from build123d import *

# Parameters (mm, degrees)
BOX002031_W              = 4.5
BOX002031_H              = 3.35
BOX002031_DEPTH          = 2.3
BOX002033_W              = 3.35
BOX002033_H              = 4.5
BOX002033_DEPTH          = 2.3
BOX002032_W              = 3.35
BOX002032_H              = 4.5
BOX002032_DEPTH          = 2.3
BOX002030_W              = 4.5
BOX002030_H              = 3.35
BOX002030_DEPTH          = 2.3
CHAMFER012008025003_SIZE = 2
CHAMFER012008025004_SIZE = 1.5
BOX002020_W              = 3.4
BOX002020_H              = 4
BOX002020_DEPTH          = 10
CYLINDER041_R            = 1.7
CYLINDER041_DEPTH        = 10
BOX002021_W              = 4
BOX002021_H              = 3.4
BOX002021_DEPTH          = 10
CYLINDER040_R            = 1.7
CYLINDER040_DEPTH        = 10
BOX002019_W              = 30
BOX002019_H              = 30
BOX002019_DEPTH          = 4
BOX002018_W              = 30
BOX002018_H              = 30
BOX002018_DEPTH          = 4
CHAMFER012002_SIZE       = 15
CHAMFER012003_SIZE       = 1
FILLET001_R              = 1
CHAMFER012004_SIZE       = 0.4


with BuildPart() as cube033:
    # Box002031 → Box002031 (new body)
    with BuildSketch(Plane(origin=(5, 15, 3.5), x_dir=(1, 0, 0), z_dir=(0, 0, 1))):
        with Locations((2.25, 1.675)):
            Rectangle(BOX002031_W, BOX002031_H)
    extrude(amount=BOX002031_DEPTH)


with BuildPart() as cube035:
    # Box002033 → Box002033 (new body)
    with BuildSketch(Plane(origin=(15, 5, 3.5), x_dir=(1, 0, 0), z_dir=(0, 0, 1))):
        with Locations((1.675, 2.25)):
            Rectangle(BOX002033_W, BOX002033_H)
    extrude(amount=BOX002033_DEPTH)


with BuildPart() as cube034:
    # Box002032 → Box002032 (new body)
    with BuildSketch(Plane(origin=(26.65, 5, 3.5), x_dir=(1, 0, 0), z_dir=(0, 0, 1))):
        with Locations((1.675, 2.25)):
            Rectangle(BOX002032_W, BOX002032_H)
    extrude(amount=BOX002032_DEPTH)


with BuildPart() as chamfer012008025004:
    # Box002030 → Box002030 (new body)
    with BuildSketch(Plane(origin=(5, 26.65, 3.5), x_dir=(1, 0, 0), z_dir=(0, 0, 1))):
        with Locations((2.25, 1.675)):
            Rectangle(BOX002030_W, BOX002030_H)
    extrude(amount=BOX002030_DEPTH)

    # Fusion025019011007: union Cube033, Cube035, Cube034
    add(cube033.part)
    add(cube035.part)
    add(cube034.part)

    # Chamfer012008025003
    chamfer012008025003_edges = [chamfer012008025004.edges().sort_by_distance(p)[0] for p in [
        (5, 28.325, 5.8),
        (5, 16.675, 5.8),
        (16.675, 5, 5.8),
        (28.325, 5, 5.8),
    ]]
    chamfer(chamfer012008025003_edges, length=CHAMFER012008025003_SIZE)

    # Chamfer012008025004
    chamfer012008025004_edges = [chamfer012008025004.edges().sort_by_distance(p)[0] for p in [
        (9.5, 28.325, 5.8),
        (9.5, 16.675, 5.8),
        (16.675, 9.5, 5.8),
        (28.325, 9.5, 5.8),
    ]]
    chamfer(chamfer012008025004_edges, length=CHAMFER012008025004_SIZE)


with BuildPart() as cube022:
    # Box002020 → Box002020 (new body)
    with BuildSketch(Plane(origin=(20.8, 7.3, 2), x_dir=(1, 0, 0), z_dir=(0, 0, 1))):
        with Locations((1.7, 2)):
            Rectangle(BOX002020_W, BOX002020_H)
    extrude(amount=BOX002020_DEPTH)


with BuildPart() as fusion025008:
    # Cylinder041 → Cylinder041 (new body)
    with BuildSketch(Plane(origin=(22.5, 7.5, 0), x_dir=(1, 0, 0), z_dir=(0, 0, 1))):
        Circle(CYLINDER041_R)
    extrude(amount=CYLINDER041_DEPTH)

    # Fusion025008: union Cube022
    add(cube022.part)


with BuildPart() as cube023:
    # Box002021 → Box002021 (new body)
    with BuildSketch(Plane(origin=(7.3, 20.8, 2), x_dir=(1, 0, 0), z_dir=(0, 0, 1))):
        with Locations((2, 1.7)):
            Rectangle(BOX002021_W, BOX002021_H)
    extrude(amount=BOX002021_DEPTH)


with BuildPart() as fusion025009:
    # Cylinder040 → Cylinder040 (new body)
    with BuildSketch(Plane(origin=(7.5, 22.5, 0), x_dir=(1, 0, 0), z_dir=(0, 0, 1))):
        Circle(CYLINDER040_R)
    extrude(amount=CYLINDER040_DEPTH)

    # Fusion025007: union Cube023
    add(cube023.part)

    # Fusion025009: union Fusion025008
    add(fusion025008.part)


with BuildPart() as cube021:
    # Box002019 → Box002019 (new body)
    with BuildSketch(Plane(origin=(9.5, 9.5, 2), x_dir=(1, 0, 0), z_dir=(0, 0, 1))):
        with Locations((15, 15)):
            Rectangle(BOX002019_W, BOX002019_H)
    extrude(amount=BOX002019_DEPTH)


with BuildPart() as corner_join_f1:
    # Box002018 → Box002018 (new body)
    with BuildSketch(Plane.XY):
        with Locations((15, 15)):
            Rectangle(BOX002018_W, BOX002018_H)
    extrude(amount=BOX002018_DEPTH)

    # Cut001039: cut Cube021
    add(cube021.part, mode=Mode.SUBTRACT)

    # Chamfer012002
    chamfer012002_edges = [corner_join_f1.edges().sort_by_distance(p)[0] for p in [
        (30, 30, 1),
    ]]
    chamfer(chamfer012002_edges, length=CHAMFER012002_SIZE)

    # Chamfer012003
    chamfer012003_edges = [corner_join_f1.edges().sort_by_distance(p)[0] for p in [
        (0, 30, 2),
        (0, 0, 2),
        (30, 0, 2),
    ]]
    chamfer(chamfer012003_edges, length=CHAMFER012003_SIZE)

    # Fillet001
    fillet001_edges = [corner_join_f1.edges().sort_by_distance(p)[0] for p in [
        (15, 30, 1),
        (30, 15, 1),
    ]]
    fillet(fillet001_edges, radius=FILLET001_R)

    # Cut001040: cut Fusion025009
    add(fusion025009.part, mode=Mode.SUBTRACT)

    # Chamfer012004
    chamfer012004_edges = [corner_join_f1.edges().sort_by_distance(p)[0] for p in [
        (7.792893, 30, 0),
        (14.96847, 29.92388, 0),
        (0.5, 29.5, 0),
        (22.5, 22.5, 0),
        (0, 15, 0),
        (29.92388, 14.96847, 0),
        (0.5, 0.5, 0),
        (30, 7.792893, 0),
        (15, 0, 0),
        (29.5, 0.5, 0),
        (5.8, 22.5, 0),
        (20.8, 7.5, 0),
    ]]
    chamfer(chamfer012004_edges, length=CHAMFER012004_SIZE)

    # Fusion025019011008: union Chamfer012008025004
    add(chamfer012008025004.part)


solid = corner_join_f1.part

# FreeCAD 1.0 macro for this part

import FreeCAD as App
import Part
import Sketcher

V = App.Vector


def edges_at(feature, points):
    """Names of the edges that pass closest to the given points."""
    edges = feature.Shape.Edges
    near = lambda p: min(range(len(edges)), key=lambda i: edges[i].distToShape(Part.Vertex(*p))[0])
    return sorted({f"Edge{near(p) + 1}" for p in points})

doc = App.newDocument("Part")
body = doc.addObject("PartDesign::Body", "Body")

# Sketch on XY plane
sketch1 = doc.addObject("Sketcher::SketchObject", "Sketch")
body.addObject(sketch1)
sketch1.AttachmentSupport = (doc.XY_Plane, [""])
sketch1.MapMode = "FlatFace"
sketch1.AttachmentOffset = App.Placement(V(0, 0, 3.5), App.Rotation())
sketch1.addGeometry([
    Part.LineSegment(V(5, 18.35, 0), V(5, 15, 0)),
    Part.LineSegment(V(5, 15, 0), V(9.5, 15, 0)),
    Part.LineSegment(V(9.5, 15, 0), V(9.5, 18.35, 0)),
    Part.LineSegment(V(9.5, 18.35, 0), V(5, 18.35, 0)),
], False)
sketch1.addConstraint([
    Sketcher.Constraint("Coincident", 0, 2, 1, 1),
    Sketcher.Constraint("Coincident", 1, 2, 2, 1),
    Sketcher.Constraint("Coincident", 2, 2, 3, 1),
    Sketcher.Constraint("Coincident", 3, 2, 0, 1),
    Sketcher.Constraint("Vertical", 0),
    Sketcher.Constraint("Horizontal", 1),
    Sketcher.Constraint("Vertical", 2),
    Sketcher.Constraint("Horizontal", 3),
    Sketcher.Constraint("DistanceX", 1, 1, 1, 2, 4.5),
    Sketcher.Constraint("DistanceX", -1, 1, 0, 2, 5.0),
    Sketcher.Constraint("DistanceY", -1, 1, 0, 2, 15.0),
    Sketcher.Constraint("DistanceY", 0, 2, 0, 1, 3.35),
])
pad1 = doc.addObject("PartDesign::Pad", "Pad")
body.addObject(pad1)
pad1.Profile = sketch1
pad1.Length = 2.3
body2 = doc.addObject("PartDesign::Body", "Body001")

# Sketch on XY plane
sketch2 = doc.addObject("Sketcher::SketchObject", "Sketch001")
body2.addObject(sketch2)
sketch2.AttachmentSupport = (doc.getObject("XY_Plane001"), [""])
sketch2.MapMode = "FlatFace"
sketch2.AttachmentOffset = App.Placement(V(0, 0, 3.5), App.Rotation())
sketch2.addGeometry([
    Part.LineSegment(V(15, 9.5, 0), V(15, 5, 0)),
    Part.LineSegment(V(15, 5, 0), V(18.35, 5, 0)),
    Part.LineSegment(V(18.35, 5, 0), V(18.35, 9.5, 0)),
    Part.LineSegment(V(18.35, 9.5, 0), V(15, 9.5, 0)),
], False)
sketch2.addConstraint([
    Sketcher.Constraint("Coincident", 0, 2, 1, 1),
    Sketcher.Constraint("Coincident", 1, 2, 2, 1),
    Sketcher.Constraint("Coincident", 2, 2, 3, 1),
    Sketcher.Constraint("Coincident", 3, 2, 0, 1),
    Sketcher.Constraint("Vertical", 0),
    Sketcher.Constraint("Horizontal", 1),
    Sketcher.Constraint("Vertical", 2),
    Sketcher.Constraint("Horizontal", 3),
    Sketcher.Constraint("DistanceY", 0, 2, 0, 1, 4.5),
    Sketcher.Constraint("DistanceX", -1, 1, 0, 2, 15.0),
    Sketcher.Constraint("DistanceY", -1, 1, 0, 2, 5.0),
    Sketcher.Constraint("DistanceX", 1, 1, 1, 2, 3.35),
])
pad2 = doc.addObject("PartDesign::Pad", "Pad001")
body2.addObject(pad2)
pad2.Profile = sketch2
pad2.Length = 2.3
body3 = doc.addObject("PartDesign::Body", "Body002")

# Sketch on XY plane
sketch3 = doc.addObject("Sketcher::SketchObject", "Sketch002")
body3.addObject(sketch3)
sketch3.AttachmentSupport = (doc.getObject("XY_Plane002"), [""])
sketch3.MapMode = "FlatFace"
sketch3.AttachmentOffset = App.Placement(V(0, 0, 3.5), App.Rotation())
sketch3.addGeometry([
    Part.LineSegment(V(26.65, 9.5, 0), V(26.65, 5, 0)),
    Part.LineSegment(V(26.65, 5, 0), V(30, 5, 0)),
    Part.LineSegment(V(30, 5, 0), V(30, 9.5, 0)),
    Part.LineSegment(V(30, 9.5, 0), V(26.65, 9.5, 0)),
], False)
sketch3.addConstraint([
    Sketcher.Constraint("Coincident", 0, 2, 1, 1),
    Sketcher.Constraint("Coincident", 1, 2, 2, 1),
    Sketcher.Constraint("Coincident", 2, 2, 3, 1),
    Sketcher.Constraint("Coincident", 3, 2, 0, 1),
    Sketcher.Constraint("Vertical", 0),
    Sketcher.Constraint("Horizontal", 1),
    Sketcher.Constraint("Vertical", 2),
    Sketcher.Constraint("Horizontal", 3),
    Sketcher.Constraint("DistanceY", 0, 2, 0, 1, 4.5),
    Sketcher.Constraint("DistanceY", -1, 1, 0, 2, 5.0),
    Sketcher.Constraint("DistanceX", -1, 1, 1, 2, 30.0),
    Sketcher.Constraint("DistanceX", 1, 1, 1, 2, 3.35),
])
pad3 = doc.addObject("PartDesign::Pad", "Pad002")
body3.addObject(pad3)
pad3.Profile = sketch3
pad3.Length = 2.3
body4 = doc.addObject("PartDesign::Body", "Body003")
body4.AllowCompound = True

# Sketch on XY plane
sketch4 = doc.addObject("Sketcher::SketchObject", "Sketch003")
body4.addObject(sketch4)
sketch4.AttachmentSupport = (doc.getObject("XY_Plane003"), [""])
sketch4.MapMode = "FlatFace"
sketch4.AttachmentOffset = App.Placement(V(0, 0, 3.5), App.Rotation())
sketch4.addGeometry([
    Part.LineSegment(V(5, 30, 0), V(5, 26.65, 0)),
    Part.LineSegment(V(5, 26.65, 0), V(9.5, 26.65, 0)),
    Part.LineSegment(V(9.5, 26.65, 0), V(9.5, 30, 0)),
    Part.LineSegment(V(9.5, 30, 0), V(5, 30, 0)),
], False)
sketch4.addConstraint([
    Sketcher.Constraint("Coincident", 0, 2, 1, 1),
    Sketcher.Constraint("Coincident", 1, 2, 2, 1),
    Sketcher.Constraint("Coincident", 2, 2, 3, 1),
    Sketcher.Constraint("Coincident", 3, 2, 0, 1),
    Sketcher.Constraint("Vertical", 0),
    Sketcher.Constraint("Horizontal", 1),
    Sketcher.Constraint("Vertical", 2),
    Sketcher.Constraint("Horizontal", 3),
    Sketcher.Constraint("DistanceX", 1, 1, 1, 2, 4.5),
    Sketcher.Constraint("DistanceX", -1, 1, 0, 2, 5.0),
    Sketcher.Constraint("DistanceY", -1, 1, 2, 2, 30.0),
    Sketcher.Constraint("DistanceY", 0, 2, 0, 1, 3.35),
])
pad4 = doc.addObject("PartDesign::Pad", "Pad003")
body4.addObject(pad4)
pad4.Profile = sketch4
pad4.Length = 2.3
doc.recompute()

boolean = doc.addObject("PartDesign::Boolean", "Boolean")
body4.addObject(boolean)
boolean.Type = "Fuse"
boolean.addObjects([body])
doc.recompute()

boolean2 = doc.addObject("PartDesign::Boolean", "Boolean001")
body4.addObject(boolean2)
boolean2.Type = "Fuse"
boolean2.addObjects([body2])
doc.recompute()

boolean3 = doc.addObject("PartDesign::Boolean", "Boolean002")
body4.addObject(boolean3)
boolean3.Type = "Fuse"
boolean3.addObjects([body3])
doc.recompute()

chamfer = doc.addObject("PartDesign::Chamfer", "Chamfer")
body4.addObject(chamfer)
chamfer.Base = (boolean3, edges_at(boolean3, [
    (5, 28.325, 5.8),
    (5, 16.675, 5.8),
    (16.675, 5, 5.8),
    (28.325, 5, 5.8),
]))
chamfer.Size = 2
doc.recompute()

chamfer2 = doc.addObject("PartDesign::Chamfer", "Chamfer001")
body4.addObject(chamfer2)
chamfer2.Base = (chamfer, edges_at(chamfer, [
    (9.5, 28.325, 5.8),
    (9.5, 16.675, 5.8),
    (16.675, 9.5, 5.8),
    (28.325, 9.5, 5.8),
]))
chamfer2.Size = 1.5
body5 = doc.addObject("PartDesign::Body", "Body004")

# Sketch on XY plane
sketch5 = doc.addObject("Sketcher::SketchObject", "Sketch004")
body5.addObject(sketch5)
sketch5.AttachmentSupport = (doc.getObject("XY_Plane004"), [""])
sketch5.MapMode = "FlatFace"
sketch5.AttachmentOffset = App.Placement(V(0, 0, 2), App.Rotation())
sketch5.addGeometry([
    Part.LineSegment(V(20.8, 11.3, 0), V(20.8, 7.3, 0)),
    Part.LineSegment(V(20.8, 7.3, 0), V(24.2, 7.3, 0)),
    Part.LineSegment(V(24.2, 7.3, 0), V(24.2, 11.3, 0)),
    Part.LineSegment(V(24.2, 11.3, 0), V(20.8, 11.3, 0)),
], False)
sketch5.addConstraint([
    Sketcher.Constraint("Coincident", 0, 2, 1, 1),
    Sketcher.Constraint("Coincident", 1, 2, 2, 1),
    Sketcher.Constraint("Coincident", 2, 2, 3, 1),
    Sketcher.Constraint("Coincident", 3, 2, 0, 1),
    Sketcher.Constraint("Vertical", 0),
    Sketcher.Constraint("Horizontal", 1),
    Sketcher.Constraint("Vertical", 2),
    Sketcher.Constraint("Horizontal", 3),
    Sketcher.Constraint("DistanceY", 0, 2, 0, 1, 4.0),
    Sketcher.Constraint("DistanceX", 1, 1, 1, 2, 3.4),
    Sketcher.Constraint("DistanceX", -1, 1, 0, 2, 20.8),
    Sketcher.Constraint("DistanceY", -1, 1, 0, 2, 7.3),
])
pad5 = doc.addObject("PartDesign::Pad", "Pad004")
body5.addObject(pad5)
pad5.Profile = sketch5
pad5.Length = 10
body6 = doc.addObject("PartDesign::Body", "Body005")

# Sketch on XY plane
sketch6 = doc.addObject("Sketcher::SketchObject", "Sketch005")
body6.addObject(sketch6)
sketch6.AttachmentSupport = (doc.getObject("XY_Plane005"), [""])
sketch6.MapMode = "FlatFace"
sketch6.addGeometry(Part.Circle(V(22.5, 7.5, 0), V(0, 0, 1), 1.7), False)
sketch6.addConstraint([
    Sketcher.Constraint("Diameter", 0, 3.4),
    Sketcher.Constraint("DistanceX", -1, 1, 0, 3, 22.5),
    Sketcher.Constraint("DistanceY", -1, 1, 0, 3, 7.5),
])
pad6 = doc.addObject("PartDesign::Pad", "Pad005")
body6.addObject(pad6)
pad6.Profile = sketch6
pad6.Length = 10
doc.recompute()

boolean4 = doc.addObject("PartDesign::Boolean", "Boolean003")
body6.addObject(boolean4)
boolean4.Type = "Fuse"
boolean4.addObjects([body5])
body7 = doc.addObject("PartDesign::Body", "Body006")

# Sketch on XY plane
sketch7 = doc.addObject("Sketcher::SketchObject", "Sketch006")
body7.addObject(sketch7)
sketch7.AttachmentSupport = (doc.getObject("XY_Plane006"), [""])
sketch7.MapMode = "FlatFace"
sketch7.AttachmentOffset = App.Placement(V(0, 0, 2), App.Rotation())
sketch7.addGeometry([
    Part.LineSegment(V(7.3, 24.2, 0), V(7.3, 20.8, 0)),
    Part.LineSegment(V(7.3, 20.8, 0), V(11.3, 20.8, 0)),
    Part.LineSegment(V(11.3, 20.8, 0), V(11.3, 24.2, 0)),
    Part.LineSegment(V(11.3, 24.2, 0), V(7.3, 24.2, 0)),
], False)
sketch7.addConstraint([
    Sketcher.Constraint("Coincident", 0, 2, 1, 1),
    Sketcher.Constraint("Coincident", 1, 2, 2, 1),
    Sketcher.Constraint("Coincident", 2, 2, 3, 1),
    Sketcher.Constraint("Coincident", 3, 2, 0, 1),
    Sketcher.Constraint("Vertical", 0),
    Sketcher.Constraint("Horizontal", 1),
    Sketcher.Constraint("Vertical", 2),
    Sketcher.Constraint("Horizontal", 3),
    Sketcher.Constraint("DistanceX", 1, 1, 1, 2, 4.0),
    Sketcher.Constraint("DistanceY", 0, 2, 0, 1, 3.4),
    Sketcher.Constraint("DistanceX", -1, 1, 0, 2, 7.3),
    Sketcher.Constraint("DistanceY", -1, 1, 0, 2, 20.8),
])
pad7 = doc.addObject("PartDesign::Pad", "Pad006")
body7.addObject(pad7)
pad7.Profile = sketch7
pad7.Length = 10
body8 = doc.addObject("PartDesign::Body", "Body007")
body8.AllowCompound = True

# Sketch on XY plane
sketch8 = doc.addObject("Sketcher::SketchObject", "Sketch007")
body8.addObject(sketch8)
sketch8.AttachmentSupport = (doc.getObject("XY_Plane007"), [""])
sketch8.MapMode = "FlatFace"
sketch8.addGeometry(Part.Circle(V(7.5, 22.5, 0), V(0, 0, 1), 1.7), False)
sketch8.addConstraint([
    Sketcher.Constraint("Diameter", 0, 3.4),
    Sketcher.Constraint("DistanceX", -1, 1, 0, 3, 7.5),
    Sketcher.Constraint("DistanceY", -1, 1, 0, 3, 22.5),
])
pad8 = doc.addObject("PartDesign::Pad", "Pad007")
body8.addObject(pad8)
pad8.Profile = sketch8
pad8.Length = 10
doc.recompute()

boolean5 = doc.addObject("PartDesign::Boolean", "Boolean004")
body8.addObject(boolean5)
boolean5.Type = "Fuse"
boolean5.addObjects([body7])
doc.recompute()

boolean6 = doc.addObject("PartDesign::Boolean", "Boolean005")
body8.addObject(boolean6)
boolean6.Type = "Fuse"
boolean6.addObjects([body6])
body9 = doc.addObject("PartDesign::Body", "Body008")

# Sketch on XY plane
sketch9 = doc.addObject("Sketcher::SketchObject", "Sketch008")
body9.addObject(sketch9)
sketch9.AttachmentSupport = (doc.getObject("XY_Plane008"), [""])
sketch9.MapMode = "FlatFace"
sketch9.AttachmentOffset = App.Placement(V(0, 0, 2), App.Rotation())
sketch9.addGeometry([
    Part.LineSegment(V(9.5, 39.5, 0), V(9.5, 9.5, 0)),
    Part.LineSegment(V(9.5, 9.5, 0), V(39.5, 9.5, 0)),
    Part.LineSegment(V(39.5, 9.5, 0), V(39.5, 39.5, 0)),
    Part.LineSegment(V(39.5, 39.5, 0), V(9.5, 39.5, 0)),
], False)
sketch9.addConstraint([
    Sketcher.Constraint("Coincident", 0, 2, 1, 1),
    Sketcher.Constraint("Coincident", 1, 2, 2, 1),
    Sketcher.Constraint("Coincident", 2, 2, 3, 1),
    Sketcher.Constraint("Coincident", 3, 2, 0, 1),
    Sketcher.Constraint("Vertical", 0),
    Sketcher.Constraint("Horizontal", 1),
    Sketcher.Constraint("Vertical", 2),
    Sketcher.Constraint("Horizontal", 3),
    Sketcher.Constraint("Equal", 3, 0),
    Sketcher.Constraint("DistanceX", 1, 1, 1, 2, 30.0),
    Sketcher.Constraint("DistanceX", -1, 1, 0, 2, 9.5),
    Sketcher.Constraint("DistanceY", -1, 1, 0, 2, 9.5),
])
pad9 = doc.addObject("PartDesign::Pad", "Pad008")
body9.addObject(pad9)
pad9.Profile = sketch9
pad9.Length = 4
body10 = doc.addObject("PartDesign::Body", "Body009")

# Sketch on XY plane
sketch10 = doc.addObject("Sketcher::SketchObject", "Sketch009")
body10.addObject(sketch10)
sketch10.AttachmentSupport = (doc.getObject("XY_Plane009"), [""])
sketch10.MapMode = "FlatFace"
sketch10.addGeometry([
    Part.LineSegment(V(0, 30, 0), V(0, 0, 0)),
    Part.LineSegment(V(0, 0, 0), V(30, 0, 0)),
    Part.LineSegment(V(30, 0, 0), V(30, 30, 0)),
    Part.LineSegment(V(30, 30, 0), V(0, 30, 0)),
], False)
sketch10.addConstraint([
    Sketcher.Constraint("Coincident", 0, 2, 1, 1),
    Sketcher.Constraint("Coincident", 1, 2, 2, 1),
    Sketcher.Constraint("Coincident", 2, 2, 3, 1),
    Sketcher.Constraint("Coincident", 3, 2, 0, 1),
    Sketcher.Constraint("Vertical", 0),
    Sketcher.Constraint("Horizontal", 1),
    Sketcher.Constraint("Vertical", 2),
    Sketcher.Constraint("Horizontal", 3),
    Sketcher.Constraint("Coincident", 0, 2, -1, 1),
    Sketcher.Constraint("Equal", 3, 0),
    Sketcher.Constraint("DistanceX", 1, 1, 1, 2, 30.0),
])
pad10 = doc.addObject("PartDesign::Pad", "Pad009")
body10.addObject(pad10)
pad10.Profile = sketch10
pad10.Length = 4
doc.recompute()

boolean7 = doc.addObject("PartDesign::Boolean", "Boolean006")
body10.addObject(boolean7)
boolean7.Type = "Cut"
boolean7.addObjects([body9])
doc.recompute()

chamfer3 = doc.addObject("PartDesign::Chamfer", "Chamfer002")
body10.addObject(chamfer3)
chamfer3.Base = (boolean7, edges_at(boolean7, [(30, 30, 1)]))
chamfer3.Size = 15
doc.recompute()

chamfer4 = doc.addObject("PartDesign::Chamfer", "Chamfer003")
body10.addObject(chamfer4)
chamfer4.Base = (chamfer3, edges_at(chamfer3, [(0, 30, 2), (0, 0, 2), (30, 0, 2)]))
chamfer4.Size = 1
doc.recompute()

fillet = doc.addObject("PartDesign::Fillet", "Fillet")
body10.addObject(fillet)
fillet.Base = (chamfer4, edges_at(chamfer4, [(15, 30, 1), (30, 15, 1)]))
fillet.Radius = 1
doc.recompute()

boolean8 = doc.addObject("PartDesign::Boolean", "Boolean007")
body10.addObject(boolean8)
boolean8.Type = "Cut"
boolean8.addObjects([body8])
doc.recompute()

chamfer5 = doc.addObject("PartDesign::Chamfer", "Chamfer004")
body10.addObject(chamfer5)
chamfer5.Base = (boolean8, edges_at(boolean8, [
    (7.793, 30, 0),
    (14.968, 29.924, 0),
    (0.5, 29.5, 0),
    (22.5, 22.5, 0),
    (0, 15, 0),
    (29.924, 14.968, 0),
    (0.5, 0.5, 0),
    (30, 7.793, 0),
    (15, 0, 0),
    (29.5, 0.5, 0),
    (5.8, 22.5, 0),
    (20.8, 7.5, 0),
]))
chamfer5.Size = 0.4
doc.recompute()

boolean9 = doc.addObject("PartDesign::Boolean", "Boolean008")
body10.addObject(boolean9)
boolean9.Type = "Fuse"
boolean9.addObjects([body4])

doc.recompute()
